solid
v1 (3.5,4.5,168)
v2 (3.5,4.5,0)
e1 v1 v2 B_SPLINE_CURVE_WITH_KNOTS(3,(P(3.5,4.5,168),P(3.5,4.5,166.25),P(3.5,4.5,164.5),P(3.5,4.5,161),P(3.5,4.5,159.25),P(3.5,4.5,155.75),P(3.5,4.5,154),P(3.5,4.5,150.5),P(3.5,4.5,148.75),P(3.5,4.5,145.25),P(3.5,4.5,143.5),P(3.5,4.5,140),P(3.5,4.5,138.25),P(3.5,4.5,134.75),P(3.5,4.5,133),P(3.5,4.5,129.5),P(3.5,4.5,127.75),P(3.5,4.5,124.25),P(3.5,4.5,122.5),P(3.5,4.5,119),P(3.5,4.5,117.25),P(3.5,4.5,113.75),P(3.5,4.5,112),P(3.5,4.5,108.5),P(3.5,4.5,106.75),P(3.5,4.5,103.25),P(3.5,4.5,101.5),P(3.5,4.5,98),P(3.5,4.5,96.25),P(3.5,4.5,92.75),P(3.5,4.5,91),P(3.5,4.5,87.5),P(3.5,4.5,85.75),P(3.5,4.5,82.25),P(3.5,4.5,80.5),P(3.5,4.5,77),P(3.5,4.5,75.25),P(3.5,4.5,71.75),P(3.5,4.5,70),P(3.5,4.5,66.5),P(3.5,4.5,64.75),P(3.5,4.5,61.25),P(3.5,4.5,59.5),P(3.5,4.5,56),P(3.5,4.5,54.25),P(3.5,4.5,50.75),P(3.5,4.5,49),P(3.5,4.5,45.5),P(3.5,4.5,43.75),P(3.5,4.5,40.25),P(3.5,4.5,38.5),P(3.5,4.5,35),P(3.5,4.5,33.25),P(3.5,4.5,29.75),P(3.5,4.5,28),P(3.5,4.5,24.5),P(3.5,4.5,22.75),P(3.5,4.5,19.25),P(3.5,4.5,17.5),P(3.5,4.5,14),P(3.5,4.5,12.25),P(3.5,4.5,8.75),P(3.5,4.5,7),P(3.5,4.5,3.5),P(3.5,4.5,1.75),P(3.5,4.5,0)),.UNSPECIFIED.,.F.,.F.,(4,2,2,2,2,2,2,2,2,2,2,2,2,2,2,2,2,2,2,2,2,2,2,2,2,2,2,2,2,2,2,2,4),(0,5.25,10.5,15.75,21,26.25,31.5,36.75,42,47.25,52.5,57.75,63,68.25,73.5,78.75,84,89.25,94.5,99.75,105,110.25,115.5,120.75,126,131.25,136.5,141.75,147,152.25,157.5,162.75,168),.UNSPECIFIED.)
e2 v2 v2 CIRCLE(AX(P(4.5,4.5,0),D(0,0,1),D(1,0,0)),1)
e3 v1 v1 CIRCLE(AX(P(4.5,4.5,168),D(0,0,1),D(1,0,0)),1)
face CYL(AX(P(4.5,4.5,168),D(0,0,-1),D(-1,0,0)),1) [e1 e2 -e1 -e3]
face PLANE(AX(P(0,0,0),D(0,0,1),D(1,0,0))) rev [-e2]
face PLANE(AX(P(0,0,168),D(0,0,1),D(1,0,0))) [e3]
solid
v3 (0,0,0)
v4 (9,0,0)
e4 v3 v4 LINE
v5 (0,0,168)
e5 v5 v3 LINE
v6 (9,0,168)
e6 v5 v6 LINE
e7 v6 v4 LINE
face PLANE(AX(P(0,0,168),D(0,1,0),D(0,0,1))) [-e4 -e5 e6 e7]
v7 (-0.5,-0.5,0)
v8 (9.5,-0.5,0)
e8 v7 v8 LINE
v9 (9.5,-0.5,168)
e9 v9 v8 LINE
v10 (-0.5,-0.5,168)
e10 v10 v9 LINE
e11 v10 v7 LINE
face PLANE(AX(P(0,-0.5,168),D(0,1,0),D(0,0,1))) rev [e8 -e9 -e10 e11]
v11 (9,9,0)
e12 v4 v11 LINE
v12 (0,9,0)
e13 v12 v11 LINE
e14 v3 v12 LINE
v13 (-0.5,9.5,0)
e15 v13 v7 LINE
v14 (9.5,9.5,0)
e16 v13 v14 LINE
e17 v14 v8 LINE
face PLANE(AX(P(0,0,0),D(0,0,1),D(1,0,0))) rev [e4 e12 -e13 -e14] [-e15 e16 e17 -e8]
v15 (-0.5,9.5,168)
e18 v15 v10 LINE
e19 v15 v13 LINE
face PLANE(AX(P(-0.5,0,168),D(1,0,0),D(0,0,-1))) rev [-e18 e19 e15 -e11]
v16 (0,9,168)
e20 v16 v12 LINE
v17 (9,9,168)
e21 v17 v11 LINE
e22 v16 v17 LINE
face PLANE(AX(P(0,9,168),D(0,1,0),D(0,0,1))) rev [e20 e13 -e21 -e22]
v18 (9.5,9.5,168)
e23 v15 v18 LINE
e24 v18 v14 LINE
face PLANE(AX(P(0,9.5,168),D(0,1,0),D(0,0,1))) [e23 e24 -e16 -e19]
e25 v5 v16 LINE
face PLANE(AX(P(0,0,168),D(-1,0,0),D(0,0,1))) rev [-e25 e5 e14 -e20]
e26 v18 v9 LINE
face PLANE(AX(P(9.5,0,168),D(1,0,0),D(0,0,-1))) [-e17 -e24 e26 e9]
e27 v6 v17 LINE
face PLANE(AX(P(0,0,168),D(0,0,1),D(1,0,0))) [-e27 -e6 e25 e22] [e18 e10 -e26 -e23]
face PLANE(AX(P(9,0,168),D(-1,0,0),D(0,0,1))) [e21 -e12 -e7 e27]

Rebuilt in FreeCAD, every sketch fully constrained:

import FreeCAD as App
import Part
import Sketcher

V = App.Vector


def add_polygon(sketch, points):
    """Adds a closed chain of lines whose ends are joined by coincident constraints."""
    first, n = sketch.GeometryCount, len(points)
    for a, b in zip(points, points[1:] + points[:1]):
        sketch.addGeometry(Part.LineSegment(App.Vector(*a, 0), App.Vector(*b, 0)), False)
    for i in range(n):
        sketch.addConstraint(Sketcher.Constraint("Coincident", first + i, 2, first + (i + 1) % n, 1))

doc = App.newDocument("Part")
body = doc.addObject("PartDesign::Body", "Body")

sketch1 = doc.addObject("Sketcher::SketchObject", "Sketch")
body.addObject(sketch1)
sketch1.AttachmentSupport = (doc.XY_Plane, [""])
sketch1.MapMode = "FlatFace"
add_polygon(sketch1, [(-0.5, 9.5), (-0.5, -0.5), (9.5, -0.5), (9.5, 9.5)])
add_polygon(sketch1, [(9, 0), (0, 0), (0, 9), (9, 9)])
sketch1.addConstraint(Sketcher.Constraint("Vertical", 0))
sketch1.addConstraint(Sketcher.Constraint("Horizontal", 1))
sketch1.addConstraint(Sketcher.Constraint("Vertical", 2))
sketch1.addConstraint(Sketcher.Constraint("Horizontal", 3))
sketch1.addConstraint(Sketcher.Constraint("Horizontal", 4))
sketch1.addConstraint(Sketcher.Constraint("Vertical", 5))
sketch1.addConstraint(Sketcher.Constraint("Horizontal", 6))
sketch1.addConstraint(Sketcher.Constraint("Vertical", 7))
sketch1.addConstraint(Sketcher.Constraint("Coincident", 4, 2, -1, 1))
sketch1.addConstraint(Sketcher.Constraint("Equal", 3, 0))
sketch1.addConstraint(Sketcher.Constraint("Equal", 6, 5))
sketch1.addConstraint(Sketcher.Constraint("DistanceX", 1, 1, 1, 2, 10.0))
sketch1.addConstraint(Sketcher.Constraint("DistanceX", 4, 2, 4, 1, 9.0))
sketch1.addConstraint(Sketcher.Constraint("DistanceX", 0, 2, -1, 1, 0.5))
sketch1.addConstraint(Sketcher.Constraint("DistanceY", 0, 2, -1, 1, 0.5))
pad1 = doc.addObject("PartDesign::Pad", "Pad")
body.addObject(pad1)
pad1.Profile = sketch1
pad1.Length = 168
body2 = doc.addObject("PartDesign::Body", "Body001")

sketch2 = doc.addObject("Sketcher::SketchObject", "Sketch001")
body2.addObject(sketch2)
sketch2.AttachmentSupport = (doc.getObject("XY_Plane001"), [""])
sketch2.MapMode = "FlatFace"
sketch2.addGeometry(Part.Circle(V(4.5, 4.5, 0), V(0, 0, 1), 1), False)
sketch2.addConstraint(Sketcher.Constraint("Diameter", 0, 2.0))
sketch2.addConstraint(Sketcher.Constraint("DistanceX", -1, 1, 0, 3, 4.5))
sketch2.addConstraint(Sketcher.Constraint("DistanceY", -1, 1, 0, 3, 4.5))
pad2 = doc.addObject("PartDesign::Pad", "Pad001")
body2.addObject(pad2)
pad2.Profile = sketch2
pad2.Length = 168

doc.recompute()
